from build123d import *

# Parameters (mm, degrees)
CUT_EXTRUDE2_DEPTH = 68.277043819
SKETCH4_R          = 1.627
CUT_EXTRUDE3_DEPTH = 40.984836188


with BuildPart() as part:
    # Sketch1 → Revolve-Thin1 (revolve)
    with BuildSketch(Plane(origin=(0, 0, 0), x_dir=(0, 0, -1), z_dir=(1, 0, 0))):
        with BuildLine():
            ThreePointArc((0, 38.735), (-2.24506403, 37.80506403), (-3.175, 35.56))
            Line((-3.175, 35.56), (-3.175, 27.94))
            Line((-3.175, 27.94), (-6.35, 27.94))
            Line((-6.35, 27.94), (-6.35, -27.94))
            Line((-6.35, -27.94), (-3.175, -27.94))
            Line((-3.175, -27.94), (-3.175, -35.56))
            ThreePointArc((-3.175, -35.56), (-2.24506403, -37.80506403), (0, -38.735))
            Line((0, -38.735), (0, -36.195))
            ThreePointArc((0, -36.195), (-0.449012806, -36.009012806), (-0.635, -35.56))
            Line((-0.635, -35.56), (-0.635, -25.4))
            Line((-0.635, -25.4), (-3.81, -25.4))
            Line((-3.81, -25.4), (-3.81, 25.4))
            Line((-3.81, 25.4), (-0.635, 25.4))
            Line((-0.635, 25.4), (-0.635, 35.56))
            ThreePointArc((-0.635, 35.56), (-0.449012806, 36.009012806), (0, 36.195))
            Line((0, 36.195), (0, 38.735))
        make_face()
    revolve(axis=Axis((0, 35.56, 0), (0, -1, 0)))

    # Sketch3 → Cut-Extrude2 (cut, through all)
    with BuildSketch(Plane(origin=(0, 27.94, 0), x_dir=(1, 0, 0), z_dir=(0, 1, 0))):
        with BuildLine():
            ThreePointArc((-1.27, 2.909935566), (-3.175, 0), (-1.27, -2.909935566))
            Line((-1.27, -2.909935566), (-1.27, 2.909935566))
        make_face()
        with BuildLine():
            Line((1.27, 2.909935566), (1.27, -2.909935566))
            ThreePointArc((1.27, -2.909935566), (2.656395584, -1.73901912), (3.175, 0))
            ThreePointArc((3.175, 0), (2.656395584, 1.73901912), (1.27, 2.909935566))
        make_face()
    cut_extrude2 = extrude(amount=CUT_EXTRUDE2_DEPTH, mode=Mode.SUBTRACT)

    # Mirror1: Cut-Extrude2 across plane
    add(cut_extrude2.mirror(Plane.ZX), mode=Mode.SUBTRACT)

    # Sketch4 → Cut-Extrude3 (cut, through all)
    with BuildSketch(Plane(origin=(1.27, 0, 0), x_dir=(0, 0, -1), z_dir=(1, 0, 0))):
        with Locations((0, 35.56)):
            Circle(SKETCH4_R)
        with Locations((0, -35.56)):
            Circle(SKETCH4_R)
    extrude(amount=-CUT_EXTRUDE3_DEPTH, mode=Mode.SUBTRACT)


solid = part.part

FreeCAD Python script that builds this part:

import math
import FreeCAD as App
import Part
import Sketcher
Q = App.Units.Quantity

doc = App.newDocument("Part")
body = doc.addObject("PartDesign::Body", "Body")

sketch1 = body.newObject("Sketcher::SketchObject", "Sketch")
sketch1.AttachmentSupport = (doc.getObject("YZ_Plane"), [""])
sketch1.MapMode = "FlatFace"
sketch1.addGeometry([
    Part.ArcOfCircle(Part.Circle(App.Vector(35.56, 0, 0), App.Vector(0, 0, 1), 3.175), math.radians(0), math.radians(90)),
    Part.LineSegment(App.Vector(35.56, 3.175, 0), App.Vector(27.94, 3.175, 0)),
    Part.LineSegment(App.Vector(27.94, 3.175, 0), App.Vector(27.94, 6.35, 0)),
    Part.LineSegment(App.Vector(27.94, 6.35, 0), App.Vector(-27.94, 6.35, 0)),
    Part.LineSegment(App.Vector(-27.94, 6.35, 0), App.Vector(-27.94, 3.175, 0)),
    Part.LineSegment(App.Vector(-27.94, 3.175, 0), App.Vector(-35.56, 3.175, 0)),
    Part.ArcOfCircle(Part.Circle(App.Vector(-35.56, 0, 0), App.Vector(0, 0, 1), 3.175), math.radians(90), math.radians(180)),
    Part.LineSegment(App.Vector(-38.735, 0, 0), App.Vector(-36.195, 0, 0)),
    Part.ArcOfCircle(Part.Circle(App.Vector(-35.56, 0, 0), App.Vector(0, 0, 1), 0.635), math.radians(90), math.radians(180)),
    Part.LineSegment(App.Vector(-35.56, 0.635, 0), App.Vector(-25.4, 0.635, 0)),
    Part.LineSegment(App.Vector(-25.4, 0.635, 0), App.Vector(-25.4, 3.81, 0)),
    Part.LineSegment(App.Vector(-25.4, 3.81, 0), App.Vector(25.4, 3.81, 0)),
    Part.LineSegment(App.Vector(25.4, 3.81, 0), App.Vector(25.4, 0.635, 0)),
    Part.LineSegment(App.Vector(25.4, 0.635, 0), App.Vector(35.56, 0.635, 0)),
    Part.ArcOfCircle(Part.Circle(App.Vector(35.56, 0, 0), App.Vector(0, 0, 1), 0.635), math.radians(0), math.radians(90)),
    Part.LineSegment(App.Vector(36.195, 0, 0), App.Vector(38.735, 0, 0)),
], False)
sketch1.addConstraint([
    Sketcher.Constraint("Tangent", 0, 2, 1, 1),
    Sketcher.Constraint("Coincident", 1, 2, 2, 1),
    Sketcher.Constraint("Coincident", 2, 2, 3, 1),
    Sketcher.Constraint("Coincident", 3, 2, 4, 1),
    Sketcher.Constraint("Coincident", 4, 2, 5, 1),
    Sketcher.Constraint("Tangent", 5, 2, 6, 1),
    Sketcher.Constraint("Coincident", 6, 2, 7, 1),
    Sketcher.Constraint("Coincident", 7, 2, 8, 2),
    Sketcher.Constraint("Tangent", 8, 1, 9, 1),
    Sketcher.Constraint("Coincident", 9, 2, 10, 1),
    Sketcher.Constraint("Coincident", 10, 2, 11, 1),
    Sketcher.Constraint("Coincident", 11, 2, 12, 1),
    Sketcher.Constraint("Coincident", 12, 2, 13, 1),
    Sketcher.Constraint("Tangent", 13, 2, 14, 2),
    Sketcher.Constraint("Coincident", 14, 1, 15, 1),
    Sketcher.Constraint("Coincident", 15, 2, 0, 1),
    Sketcher.Constraint("Horizontal", 1),
    Sketcher.Constraint("Vertical", 2),
    Sketcher.Constraint("Horizontal", 3),
    Sketcher.Constraint("Vertical", 4),
    Sketcher.Constraint("Horizontal", 5),
    Sketcher.Constraint("Horizontal", 7),
    Sketcher.Constraint("Horizontal", 9),
    Sketcher.Constraint("Vertical", 10),
    Sketcher.Constraint("Horizontal", 11),
    Sketcher.Constraint("Vertical", 12),
    Sketcher.Constraint("Horizontal", 13),
    Sketcher.Constraint("Horizontal", 15),
    Sketcher.Constraint("Coincident", 8, 3, 6, 3),
    Sketcher.Constraint("Coincident", 14, 3, 0, 3),
    Sketcher.Constraint("Equal", 0, 6),
    Sketcher.Constraint("Equal", 8, 14),
    Sketcher.Constraint("Symmetric", 0, 3, 6, 3, -1, 1),
    Sketcher.Constraint("Symmetric", 1, 2, 4, 2, -2),
    Sketcher.Constraint("PointOnObject", 6, 2, -1),
    Sketcher.Constraint("PointOnObject", 14, 1, -1),
    Sketcher.Constraint("Equal", 9, 13),
    Sketcher.Constraint("Equal", 4, 10),
    Sketcher.Constraint("DistanceX", 11, 1, 11, 2, Q("2 in")),
    Sketcher.Constraint("DistanceX", 1, 2, 1, 1, Q("0.3 in")),
    Sketcher.Constraint("DistanceX", 3, 2, 3, 1, Q("2.2 in")),
    Sketcher.Constraint("DistanceX", 7, 1, 7, 2, Q("0.1 in")),
    Sketcher.Constraint("Radius", 0, Q("0.125 in")),
    Sketcher.Constraint("DistanceY", 2, 1, 2, 2, Q("0.125 in")),
])
revolution = body.newObject("PartDesign::Revolution", "Revolution")
revolution.Profile = sketch1
revolution.ReferenceAxis = (sketch1, ["H_Axis"])
revolution.Angle = 360

sketch2 = body.newObject("Sketcher::SketchObject", "Sketch001")
sketch2.AttachmentSupport = (doc.getObject("XZ_Plane"), [""])
sketch2.MapMode = "FlatFace"
sketch2.AttachmentOffset = App.Placement(App.Vector(0, 0, -1.1 * 25.4), App.Rotation())
sketch2.addGeometry([
    Part.ArcOfCircle(Part.Circle(App.Vector(0, 0, 0), App.Vector(0, 0, 1), 3.175), math.radians(113.578178), math.radians(246.421822)),
    Part.LineSegment(App.Vector(-1.27, 2.909936, 0), App.Vector(-1.27, -2.909936, 0)),
    Part.LineSegment(App.Vector(1.27, -2.909936, 0), App.Vector(1.27, 2.909936, 0)),
    Part.ArcOfCircle(Part.Circle(App.Vector(0, 0, 0), App.Vector(0, 0, 1), 3.175), math.radians(0), math.radians(66.421822)),
    Part.ArcOfCircle(Part.Circle(App.Vector(0, 0, 0), App.Vector(0, 0, 1), 3.175), math.radians(-66.421822), math.radians(0)),
], False)
sketch2.addConstraint([
    Sketcher.Constraint("Coincident", 0, 1, 1, 1),
    Sketcher.Constraint("Coincident", 1, 2, 0, 2),
    Sketcher.Constraint("Coincident", 2, 2, 3, 2),
    Sketcher.Constraint("Tangent", 3, 1, 4, 2),
    Sketcher.Constraint("Coincident", 4, 1, 2, 1),
    Sketcher.Constraint("Vertical", 1),
    Sketcher.Constraint("Vertical", 2),
    Sketcher.Constraint("Coincident", 0, 3, -1, 1),
    Sketcher.Constraint("Coincident", 3, 3, -1, 1),
    Sketcher.Constraint("Equal", 0, 3),
    Sketcher.Constraint("Equal", 3, 4),
    Sketcher.Constraint("PointOnObject", 3, 1, -1),
    Sketcher.Constraint("Horizontal", 0, 1, 2, 2),
    Sketcher.Constraint("Radius", 0, Q("0.125 in")),
    Sketcher.Constraint("DistanceX", 0, 1, 2, 2, Q("0.1 in")),
])
pocket1 = body.newObject("PartDesign::Pocket", "Pocket")
pocket1.Profile = sketch2
pocket1.Type = "ThroughAll"
doc.recompute()

mirrored = body.newObject("PartDesign::Mirrored", "Mirrored")
mirrored.Originals = [pocket1]
mirrored.MirrorPlane = (doc.getObject("XZ_Plane"), [""])
body.Tip = mirrored

sketch3 = body.newObject("Sketcher::SketchObject", "Sketch002")
sketch3.AttachmentSupport = (doc.getObject("YZ_Plane"), [""])
sketch3.MapMode = "FlatFace"
sketch3.AttachmentOffset = App.Placement(App.Vector(0, 0, 0.05 * 25.4), App.Rotation())
sketch3.addGeometry([
    Part.Circle(App.Vector(35.56, 0, 0), App.Vector(0, 0, 1), 1.627),
    Part.Circle(App.Vector(-35.56, 0, 0), App.Vector(0, 0, 1), 1.627),
], False)
sketch3.addConstraint([
    Sketcher.Constraint("Equal", 0, 1),
    Sketcher.Constraint("Symmetric", 0, 3, 1, 3, -1, 1),
    Sketcher.Constraint("PointOnObject", 0, 3, -1),
    Sketcher.Constraint("DistanceX", -1, 1, 0, 3, Q("1.4 in")),
    Sketcher.Constraint("Diameter", 0, 3.254),
])
pocket2 = body.newObject("PartDesign::Pocket", "Pocket001")
pocket2.Profile = sketch3
pocket2.Type = "ThroughAll"

doc.recompute()
